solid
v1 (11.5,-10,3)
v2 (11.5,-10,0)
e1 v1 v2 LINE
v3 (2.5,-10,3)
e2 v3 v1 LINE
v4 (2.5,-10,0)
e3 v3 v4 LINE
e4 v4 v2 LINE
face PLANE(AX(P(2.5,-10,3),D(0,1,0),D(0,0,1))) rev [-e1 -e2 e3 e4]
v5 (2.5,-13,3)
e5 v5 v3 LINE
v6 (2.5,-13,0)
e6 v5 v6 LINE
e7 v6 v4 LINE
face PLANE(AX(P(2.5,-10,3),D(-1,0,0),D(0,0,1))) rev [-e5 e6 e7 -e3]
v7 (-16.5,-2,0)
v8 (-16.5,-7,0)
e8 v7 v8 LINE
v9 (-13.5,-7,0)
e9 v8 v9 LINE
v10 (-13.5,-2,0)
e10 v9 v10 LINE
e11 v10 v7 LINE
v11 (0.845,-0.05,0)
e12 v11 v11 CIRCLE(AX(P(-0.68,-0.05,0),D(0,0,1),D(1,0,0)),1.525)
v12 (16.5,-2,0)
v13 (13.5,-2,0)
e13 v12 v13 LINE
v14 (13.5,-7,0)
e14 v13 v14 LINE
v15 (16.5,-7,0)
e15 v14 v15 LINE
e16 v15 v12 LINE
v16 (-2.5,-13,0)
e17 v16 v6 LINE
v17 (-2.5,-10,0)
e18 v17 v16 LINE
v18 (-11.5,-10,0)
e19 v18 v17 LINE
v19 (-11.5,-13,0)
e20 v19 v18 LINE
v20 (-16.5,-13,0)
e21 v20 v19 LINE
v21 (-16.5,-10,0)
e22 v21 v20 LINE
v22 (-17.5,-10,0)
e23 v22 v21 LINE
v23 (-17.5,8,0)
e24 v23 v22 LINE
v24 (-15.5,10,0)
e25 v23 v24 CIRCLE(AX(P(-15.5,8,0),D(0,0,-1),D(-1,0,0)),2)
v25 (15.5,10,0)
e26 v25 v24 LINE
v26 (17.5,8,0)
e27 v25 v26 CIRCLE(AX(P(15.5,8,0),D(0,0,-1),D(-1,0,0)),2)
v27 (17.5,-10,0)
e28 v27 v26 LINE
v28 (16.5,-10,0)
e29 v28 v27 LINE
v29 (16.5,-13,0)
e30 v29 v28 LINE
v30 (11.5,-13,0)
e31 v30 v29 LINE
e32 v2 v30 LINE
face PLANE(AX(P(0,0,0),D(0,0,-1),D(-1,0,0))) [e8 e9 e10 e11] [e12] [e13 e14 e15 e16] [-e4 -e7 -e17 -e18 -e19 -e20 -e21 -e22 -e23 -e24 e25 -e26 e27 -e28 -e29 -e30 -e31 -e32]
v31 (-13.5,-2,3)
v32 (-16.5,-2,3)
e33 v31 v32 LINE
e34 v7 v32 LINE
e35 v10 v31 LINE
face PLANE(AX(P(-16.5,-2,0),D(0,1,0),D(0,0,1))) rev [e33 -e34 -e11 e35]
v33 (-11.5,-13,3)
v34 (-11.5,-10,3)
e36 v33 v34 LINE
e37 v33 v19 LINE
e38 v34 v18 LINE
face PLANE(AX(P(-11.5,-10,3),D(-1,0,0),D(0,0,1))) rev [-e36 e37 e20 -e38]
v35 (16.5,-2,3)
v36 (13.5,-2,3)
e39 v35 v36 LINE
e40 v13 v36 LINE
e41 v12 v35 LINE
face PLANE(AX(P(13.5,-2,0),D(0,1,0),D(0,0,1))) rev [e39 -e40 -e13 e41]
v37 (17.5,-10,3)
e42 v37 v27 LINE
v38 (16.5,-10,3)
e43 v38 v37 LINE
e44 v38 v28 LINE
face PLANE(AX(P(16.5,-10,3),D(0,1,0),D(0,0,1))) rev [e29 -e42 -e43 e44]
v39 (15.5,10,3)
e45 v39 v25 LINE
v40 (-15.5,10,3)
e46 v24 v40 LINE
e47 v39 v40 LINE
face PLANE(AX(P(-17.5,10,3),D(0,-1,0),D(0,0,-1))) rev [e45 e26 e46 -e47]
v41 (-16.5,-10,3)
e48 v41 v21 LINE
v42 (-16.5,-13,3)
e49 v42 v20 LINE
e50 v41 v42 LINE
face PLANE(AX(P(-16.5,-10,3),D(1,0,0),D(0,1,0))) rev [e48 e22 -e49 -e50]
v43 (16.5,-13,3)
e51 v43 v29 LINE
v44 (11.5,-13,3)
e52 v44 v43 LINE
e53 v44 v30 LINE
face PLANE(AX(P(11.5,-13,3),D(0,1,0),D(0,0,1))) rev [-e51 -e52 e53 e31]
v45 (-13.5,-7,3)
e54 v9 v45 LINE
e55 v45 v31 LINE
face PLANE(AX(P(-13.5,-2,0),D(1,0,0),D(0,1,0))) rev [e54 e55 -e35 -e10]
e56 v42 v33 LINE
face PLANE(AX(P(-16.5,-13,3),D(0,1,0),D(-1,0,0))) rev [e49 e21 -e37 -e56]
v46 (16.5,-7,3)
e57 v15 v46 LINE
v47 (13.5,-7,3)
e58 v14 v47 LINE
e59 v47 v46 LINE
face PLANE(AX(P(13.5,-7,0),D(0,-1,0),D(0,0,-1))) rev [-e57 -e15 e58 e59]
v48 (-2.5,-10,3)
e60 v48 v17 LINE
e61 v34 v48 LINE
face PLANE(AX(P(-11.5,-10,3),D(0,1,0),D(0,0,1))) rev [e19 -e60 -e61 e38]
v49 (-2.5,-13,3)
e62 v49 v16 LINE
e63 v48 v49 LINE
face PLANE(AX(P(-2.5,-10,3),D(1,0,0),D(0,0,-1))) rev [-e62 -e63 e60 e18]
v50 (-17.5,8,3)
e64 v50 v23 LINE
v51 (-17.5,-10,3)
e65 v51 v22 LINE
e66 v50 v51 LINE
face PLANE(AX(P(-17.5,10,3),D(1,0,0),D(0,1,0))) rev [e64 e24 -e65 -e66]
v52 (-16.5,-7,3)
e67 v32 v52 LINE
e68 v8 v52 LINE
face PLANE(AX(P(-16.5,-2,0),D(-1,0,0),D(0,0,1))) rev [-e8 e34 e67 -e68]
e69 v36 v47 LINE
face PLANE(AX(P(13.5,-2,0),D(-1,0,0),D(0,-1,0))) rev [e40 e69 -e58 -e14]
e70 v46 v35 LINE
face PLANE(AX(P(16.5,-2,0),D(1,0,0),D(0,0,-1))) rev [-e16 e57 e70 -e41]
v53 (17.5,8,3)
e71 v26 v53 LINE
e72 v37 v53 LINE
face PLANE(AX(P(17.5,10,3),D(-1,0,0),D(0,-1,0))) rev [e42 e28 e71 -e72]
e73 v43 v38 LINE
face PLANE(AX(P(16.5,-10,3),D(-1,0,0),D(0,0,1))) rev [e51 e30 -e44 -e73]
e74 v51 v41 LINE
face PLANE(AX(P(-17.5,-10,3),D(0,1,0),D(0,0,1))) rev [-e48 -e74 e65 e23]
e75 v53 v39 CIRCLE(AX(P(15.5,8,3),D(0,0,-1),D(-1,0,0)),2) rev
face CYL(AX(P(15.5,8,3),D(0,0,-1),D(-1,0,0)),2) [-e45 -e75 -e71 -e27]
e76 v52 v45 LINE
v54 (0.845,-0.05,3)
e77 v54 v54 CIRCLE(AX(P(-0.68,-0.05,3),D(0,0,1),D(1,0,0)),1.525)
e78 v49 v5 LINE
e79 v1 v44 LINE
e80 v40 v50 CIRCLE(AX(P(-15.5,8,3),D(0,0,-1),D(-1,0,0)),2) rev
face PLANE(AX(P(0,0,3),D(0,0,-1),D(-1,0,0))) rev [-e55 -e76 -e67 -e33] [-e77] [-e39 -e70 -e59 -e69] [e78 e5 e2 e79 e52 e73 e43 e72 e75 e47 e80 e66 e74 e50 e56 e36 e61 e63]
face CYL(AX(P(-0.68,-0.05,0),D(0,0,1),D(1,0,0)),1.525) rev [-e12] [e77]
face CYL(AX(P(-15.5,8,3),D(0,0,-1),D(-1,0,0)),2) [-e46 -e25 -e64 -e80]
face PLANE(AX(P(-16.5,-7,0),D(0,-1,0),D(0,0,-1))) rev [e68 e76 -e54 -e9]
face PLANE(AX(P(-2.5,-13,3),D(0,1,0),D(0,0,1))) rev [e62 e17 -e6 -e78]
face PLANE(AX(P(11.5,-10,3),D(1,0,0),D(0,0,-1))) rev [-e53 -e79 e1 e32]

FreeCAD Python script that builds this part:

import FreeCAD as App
import Part
import Sketcher


def edges_at(feature, points):
    """Names of the edges that pass closest to the given points."""
    edges = feature.Shape.Edges
    near = lambda p: min(range(len(edges)), key=lambda i: edges[i].distToShape(Part.Vertex(*p))[0])
    return sorted({f"Edge{near(p) + 1}" for p in points})


def add_polygon(sketch, points):
    """Adds a closed chain of lines whose ends are joined by coincident constraints."""
    first, n = sketch.GeometryCount, len(points)
    for a, b in zip(points, points[1:] + points[:1]):
        sketch.addGeometry(Part.LineSegment(App.Vector(*a, 0), App.Vector(*b, 0)), False)
    for i in range(n):
        sketch.addConstraint(Sketcher.Constraint("Coincident", first + i, 2, first + (i + 1) % n, 1))

doc = App.newDocument("Part")
body = doc.addObject("PartDesign::Body", "Body")

# Sketch on XY plane
sketch1 = body.newObject("Sketcher::SketchObject", "Sketch")
sketch1.AttachmentSupport = (doc.getObject("XY_Plane"), [""])
sketch1.MapMode = "FlatFace"
add_polygon(sketch1, [(-11.5, -10), (-2.5, -10), (-2.5, -13), (2.5, -13), (2.5, -10), (11.5, -10), (11.5, -13), (16.5, -13), (16.5, -10), (17.5, -10), (17.5, 10), (-17.5, 10), (-17.5, -10), (-16.5, -10), (-16.5, -13), (-11.5, -13)])  # lines 0-15
sketch1.addConstraint([
    Sketcher.Constraint("Horizontal", 0),
    Sketcher.Constraint("Vertical", 1),
    Sketcher.Constraint("Horizontal", 2),
    Sketcher.Constraint("Vertical", 3),
    Sketcher.Constraint("Horizontal", 4),
    Sketcher.Constraint("Vertical", 5),
    Sketcher.Constraint("Horizontal", 6),
    Sketcher.Constraint("Vertical", 7),
    Sketcher.Constraint("Horizontal", 8),
    Sketcher.Constraint("Vertical", 9),
    Sketcher.Constraint("Horizontal", 10),
    Sketcher.Constraint("Vertical", 11),
    Sketcher.Constraint("Horizontal", 12),
    Sketcher.Constraint("Vertical", 13),
    Sketcher.Constraint("Horizontal", 14),
    Sketcher.Constraint("Vertical", 15),
    Sketcher.Constraint("Symmetric", 8, 2, 10, 2, -1, 1),
    Sketcher.Constraint("Symmetric", 0, 2, 3, 2, -2),
    Sketcher.Constraint("Symmetric", 7, 2, 12, 2, -2),
    Sketcher.Constraint("Symmetric", 5, 2, 14, 2, -2),
    Sketcher.Constraint("Horizontal", 2, 2, 5, 2),
    Sketcher.Constraint("Horizontal", 4, 2, 7, 2),
    Sketcher.Constraint("Equal", 2, 6),
    Sketcher.Constraint("DistanceX", 0, 1, 0, 2, 9.0),
    Sketcher.Constraint("DistanceX", 2, 1, 2, 2, 5.0),
    Sketcher.Constraint("DistanceX", 8, 1, 8, 2, 1.0),
    Sketcher.Constraint("DistanceY", 1, 2, 1, 1, 3.0),
    Sketcher.Constraint("DistanceY", 9, 1, 9, 2, 20.0),
])
pad1 = body.newObject("PartDesign::Pad", "Pad")
pad1.Profile = sketch1
pad1.Length = 3
doc.recompute()

fillet = body.newObject("PartDesign::Fillet", "Fillet")
fillet.Base = (pad1, edges_at(pad1, [(-17.5, 10, 1.5), (17.5, 10, 1.5)]))
fillet.Radius = 2

# Sketch on XY plane
sketch2 = body.newObject("Sketcher::SketchObject", "Sketch001")
sketch2.AttachmentSupport = (doc.getObject("XY_Plane"), [""])
sketch2.MapMode = "FlatFace"
sketch2.AttachmentOffset = App.Placement(App.Vector(0, 0, 3), App.Rotation())
sketch2.addGeometry(Part.Circle(App.Vector(-0.68, -0.05, 0), App.Vector(0, 0, 1), 1.525), False)  # 0
add_polygon(sketch2, [(-16.5, -2), (-16.5, -7), (-13.5, -7), (-13.5, -2)])  # lines 1-4
add_polygon(sketch2, [(13.5, -2), (13.5, -7), (16.5, -7), (16.5, -2)])  # lines 5-8
sketch2.addConstraint([
    Sketcher.Constraint("Vertical", 1),
    Sketcher.Constraint("Horizontal", 2),
    Sketcher.Constraint("Vertical", 3),
    Sketcher.Constraint("Horizontal", 4),
    Sketcher.Constraint("Vertical", 5),
    Sketcher.Constraint("Horizontal", 6),
    Sketcher.Constraint("Vertical", 7),
    Sketcher.Constraint("Horizontal", 8),
    Sketcher.Constraint("Symmetric", 2, 2, 5, 2, -2),
    Sketcher.Constraint("Symmetric", 4, 2, 7, 2, -2),
    Sketcher.Constraint("Diameter", 0, 3.05),
    Sketcher.Constraint("DistanceX", 2, 1, 2, 2, 3.0),
    Sketcher.Constraint("DistanceY", 1, 2, 1, 1, 5.0),
    Sketcher.Constraint("DistanceY", 1, 2, -1, 1, 7.0),
    Sketcher.Constraint("DistanceX", 2, 2, 5, 2, 27.0),
    Sketcher.Constraint("DistanceX", 0, 3, -1, 1, 0.68),
    Sketcher.Constraint("DistanceY", 0, 3, -1, 1, 0.05),
])
pocket1 = body.newObject("PartDesign::Pocket", "Pocket")
pocket1.Profile = sketch2
pocket1.Type = "ThroughAll"

doc.recompute()
